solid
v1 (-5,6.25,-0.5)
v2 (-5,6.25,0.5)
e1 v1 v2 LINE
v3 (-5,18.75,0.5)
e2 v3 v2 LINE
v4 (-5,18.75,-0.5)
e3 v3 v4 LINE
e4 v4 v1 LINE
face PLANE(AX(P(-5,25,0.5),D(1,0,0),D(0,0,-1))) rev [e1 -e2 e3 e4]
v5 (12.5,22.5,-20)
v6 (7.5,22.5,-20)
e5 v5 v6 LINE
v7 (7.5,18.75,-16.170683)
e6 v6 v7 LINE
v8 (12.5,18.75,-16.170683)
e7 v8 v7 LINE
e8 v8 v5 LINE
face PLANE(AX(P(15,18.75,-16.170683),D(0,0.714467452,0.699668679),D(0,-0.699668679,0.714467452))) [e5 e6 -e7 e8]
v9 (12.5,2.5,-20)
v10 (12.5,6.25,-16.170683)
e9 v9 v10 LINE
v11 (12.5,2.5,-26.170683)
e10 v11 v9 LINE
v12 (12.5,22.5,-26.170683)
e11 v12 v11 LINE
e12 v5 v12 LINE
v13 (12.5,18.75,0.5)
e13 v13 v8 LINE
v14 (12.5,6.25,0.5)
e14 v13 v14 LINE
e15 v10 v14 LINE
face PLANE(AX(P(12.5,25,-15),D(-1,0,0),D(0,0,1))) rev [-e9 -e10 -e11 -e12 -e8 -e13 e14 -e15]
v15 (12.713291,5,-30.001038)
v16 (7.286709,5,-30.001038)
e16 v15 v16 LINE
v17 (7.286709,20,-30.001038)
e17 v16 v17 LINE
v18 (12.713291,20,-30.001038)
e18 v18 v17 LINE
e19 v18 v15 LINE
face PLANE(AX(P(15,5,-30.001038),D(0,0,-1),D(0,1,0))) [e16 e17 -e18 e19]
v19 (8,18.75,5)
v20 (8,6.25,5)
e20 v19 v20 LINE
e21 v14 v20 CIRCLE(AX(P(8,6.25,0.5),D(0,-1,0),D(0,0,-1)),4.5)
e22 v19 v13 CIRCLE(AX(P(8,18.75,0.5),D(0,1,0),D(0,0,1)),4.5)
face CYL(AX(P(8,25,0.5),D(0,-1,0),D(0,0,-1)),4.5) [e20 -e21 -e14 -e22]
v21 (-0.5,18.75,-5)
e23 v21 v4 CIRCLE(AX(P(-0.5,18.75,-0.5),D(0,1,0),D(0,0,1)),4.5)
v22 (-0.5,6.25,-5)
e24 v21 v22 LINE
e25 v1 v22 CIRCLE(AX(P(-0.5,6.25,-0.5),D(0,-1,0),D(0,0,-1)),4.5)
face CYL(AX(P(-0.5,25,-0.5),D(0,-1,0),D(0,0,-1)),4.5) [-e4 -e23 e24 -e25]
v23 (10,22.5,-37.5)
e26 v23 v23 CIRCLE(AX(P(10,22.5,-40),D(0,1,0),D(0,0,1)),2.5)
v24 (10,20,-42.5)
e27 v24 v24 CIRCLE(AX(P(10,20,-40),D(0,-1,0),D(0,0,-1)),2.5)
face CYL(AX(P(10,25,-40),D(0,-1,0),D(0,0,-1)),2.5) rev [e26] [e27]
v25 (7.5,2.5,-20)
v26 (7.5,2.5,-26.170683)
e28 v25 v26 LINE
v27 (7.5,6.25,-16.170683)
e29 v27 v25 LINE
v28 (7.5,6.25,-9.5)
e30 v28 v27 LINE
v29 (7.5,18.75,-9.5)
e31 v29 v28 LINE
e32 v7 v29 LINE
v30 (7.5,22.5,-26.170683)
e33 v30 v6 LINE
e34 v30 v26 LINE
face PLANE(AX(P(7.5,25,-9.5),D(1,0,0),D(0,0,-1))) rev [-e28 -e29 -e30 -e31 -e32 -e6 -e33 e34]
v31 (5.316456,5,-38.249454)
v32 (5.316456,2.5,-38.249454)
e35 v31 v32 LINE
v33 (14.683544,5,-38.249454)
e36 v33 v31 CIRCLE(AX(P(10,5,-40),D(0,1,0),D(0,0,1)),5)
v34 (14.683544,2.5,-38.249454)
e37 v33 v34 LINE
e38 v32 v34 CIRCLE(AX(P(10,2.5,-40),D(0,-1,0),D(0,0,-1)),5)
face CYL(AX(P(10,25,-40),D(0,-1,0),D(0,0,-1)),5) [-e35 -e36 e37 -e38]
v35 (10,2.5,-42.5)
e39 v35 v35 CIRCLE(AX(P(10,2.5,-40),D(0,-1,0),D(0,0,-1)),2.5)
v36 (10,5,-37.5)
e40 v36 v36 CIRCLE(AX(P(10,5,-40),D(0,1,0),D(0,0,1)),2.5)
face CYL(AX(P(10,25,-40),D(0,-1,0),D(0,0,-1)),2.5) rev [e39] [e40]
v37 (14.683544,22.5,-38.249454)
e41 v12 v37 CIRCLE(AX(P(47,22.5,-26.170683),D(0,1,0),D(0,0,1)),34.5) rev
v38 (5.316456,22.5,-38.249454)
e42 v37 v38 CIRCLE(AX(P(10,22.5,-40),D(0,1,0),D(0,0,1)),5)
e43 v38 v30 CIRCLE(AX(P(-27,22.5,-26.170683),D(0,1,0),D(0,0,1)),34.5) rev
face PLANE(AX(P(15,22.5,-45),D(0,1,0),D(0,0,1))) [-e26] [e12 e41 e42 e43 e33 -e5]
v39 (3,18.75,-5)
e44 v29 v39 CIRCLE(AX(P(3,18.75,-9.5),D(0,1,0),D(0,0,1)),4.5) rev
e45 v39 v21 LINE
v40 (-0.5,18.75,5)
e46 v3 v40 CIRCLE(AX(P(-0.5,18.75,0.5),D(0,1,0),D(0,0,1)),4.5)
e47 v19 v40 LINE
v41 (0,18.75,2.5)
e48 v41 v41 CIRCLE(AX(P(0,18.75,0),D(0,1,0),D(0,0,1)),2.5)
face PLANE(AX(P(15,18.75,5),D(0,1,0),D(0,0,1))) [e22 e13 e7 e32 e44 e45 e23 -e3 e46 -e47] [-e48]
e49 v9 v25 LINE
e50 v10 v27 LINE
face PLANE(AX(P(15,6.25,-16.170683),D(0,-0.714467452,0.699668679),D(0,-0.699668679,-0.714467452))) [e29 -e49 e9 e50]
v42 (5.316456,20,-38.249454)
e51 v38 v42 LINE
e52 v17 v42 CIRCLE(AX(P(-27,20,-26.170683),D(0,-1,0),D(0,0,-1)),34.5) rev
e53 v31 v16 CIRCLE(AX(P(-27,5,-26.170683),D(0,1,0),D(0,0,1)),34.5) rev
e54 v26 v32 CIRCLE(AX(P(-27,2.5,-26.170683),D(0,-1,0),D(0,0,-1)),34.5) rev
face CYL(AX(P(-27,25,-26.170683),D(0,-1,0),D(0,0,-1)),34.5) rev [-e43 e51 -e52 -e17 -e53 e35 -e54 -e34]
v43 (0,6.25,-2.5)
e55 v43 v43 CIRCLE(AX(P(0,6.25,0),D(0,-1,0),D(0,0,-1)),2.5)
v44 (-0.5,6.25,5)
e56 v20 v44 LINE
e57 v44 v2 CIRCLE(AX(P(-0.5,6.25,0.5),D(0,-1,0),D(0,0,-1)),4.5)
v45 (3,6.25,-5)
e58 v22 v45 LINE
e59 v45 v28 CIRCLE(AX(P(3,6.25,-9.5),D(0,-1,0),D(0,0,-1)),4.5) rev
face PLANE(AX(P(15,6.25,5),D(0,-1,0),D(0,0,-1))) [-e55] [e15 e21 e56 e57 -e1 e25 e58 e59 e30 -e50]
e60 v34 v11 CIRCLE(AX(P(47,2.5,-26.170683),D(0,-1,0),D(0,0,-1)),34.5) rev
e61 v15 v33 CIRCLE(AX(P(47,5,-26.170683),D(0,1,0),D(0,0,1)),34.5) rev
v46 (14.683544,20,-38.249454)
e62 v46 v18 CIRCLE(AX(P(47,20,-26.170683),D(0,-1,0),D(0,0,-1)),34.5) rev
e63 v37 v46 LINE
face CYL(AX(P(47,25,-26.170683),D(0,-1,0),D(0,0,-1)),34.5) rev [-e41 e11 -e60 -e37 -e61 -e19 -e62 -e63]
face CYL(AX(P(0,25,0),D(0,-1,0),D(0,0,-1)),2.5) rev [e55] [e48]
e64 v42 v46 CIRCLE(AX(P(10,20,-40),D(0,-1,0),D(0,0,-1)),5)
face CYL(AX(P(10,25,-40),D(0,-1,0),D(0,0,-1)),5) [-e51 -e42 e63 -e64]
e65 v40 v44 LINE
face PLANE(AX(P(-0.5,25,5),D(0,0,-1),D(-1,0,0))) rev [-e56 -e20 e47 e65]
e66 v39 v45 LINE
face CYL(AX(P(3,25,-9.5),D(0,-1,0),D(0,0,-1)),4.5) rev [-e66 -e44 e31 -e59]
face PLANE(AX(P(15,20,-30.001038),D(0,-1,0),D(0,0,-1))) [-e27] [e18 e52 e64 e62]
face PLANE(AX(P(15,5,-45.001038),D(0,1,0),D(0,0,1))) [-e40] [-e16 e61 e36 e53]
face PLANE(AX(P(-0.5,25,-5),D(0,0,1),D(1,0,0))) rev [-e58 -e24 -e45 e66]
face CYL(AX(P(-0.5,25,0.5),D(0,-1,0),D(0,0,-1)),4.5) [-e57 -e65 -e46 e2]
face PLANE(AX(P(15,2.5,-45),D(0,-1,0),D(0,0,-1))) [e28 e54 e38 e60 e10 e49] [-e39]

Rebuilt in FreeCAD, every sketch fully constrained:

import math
import FreeCAD as App
import Part
import Sketcher

V = App.Vector

doc = App.newDocument("Part")
body = doc.addObject("PartDesign::Body", "Body")

# Sketch on XZ plane
sketch1 = body.newObject("Sketcher::SketchObject", "Sketch")
sketch1.AttachmentSupport = (doc.getObject("XZ_Plane"), [""])
sketch1.MapMode = "FlatFace"
sketch1.addGeometry([
    Part.LineSegment(V(7.5, -26.2, 0), V(7.5, -9.5, 0)),  # 0
    Part.ArcOfCircle(Part.Circle(V(3, -9.5, 0), V(0, 0, 1), 4.5), math.radians(0), math.radians(90)),  # 1
    Part.LineSegment(V(3, -5, 0), V(-0.5, -5, 0)),  # 2
    Part.ArcOfCircle(Part.Circle(V(-0.5, -0.5, 0), V(0, 0, 1), 4.5), math.radians(-180), math.radians(-90)),  # 3
    Part.LineSegment(V(-5, -0.5, 0), V(-5, 0.5, 0)),  # 4
    Part.ArcOfCircle(Part.Circle(V(-0.5, 0.5, 0), V(0, 0, 1), 4.5), math.radians(90), math.radians(180)),  # 5
    Part.LineSegment(V(-0.5, 5, 0), V(8, 5, 0)),  # 6
    Part.ArcOfCircle(Part.Circle(V(8, 0.5, 0), V(0, 0, 1), 4.5), math.radians(0), math.radians(90)),  # 7
    Part.LineSegment(V(12.5, 0.5, 0), V(12.5, -26.2, 0)),  # 8
    Part.ArcOfCircle(Part.Circle(V(47, -26.2, 0), V(0, 0, 1), 34.5), math.radians(180), math.radians(200)),  # 9
    Part.ArcOfCircle(Part.Circle(V(10, -40, 0), V(0, 0, 1), 5), math.radians(160), math.radians(380)),  # 10
    Part.ArcOfCircle(Part.Circle(V(-27, -26.2, 0), V(0, 0, 1), 34.5), math.radians(-20), math.radians(0)),  # 11
    Part.Circle(V(0, 0, 0), V(0, 0, 1), 2.5),  # 12
    Part.Circle(V(10, -40, 0), V(0, 0, 1), 2.5),  # 13
], False)
sketch1.addConstraint([
    Sketcher.Constraint("Tangent", 0, 2, 1, 1),
    Sketcher.Constraint("Tangent", 1, 2, 2, 1),
    Sketcher.Constraint("Tangent", 2, 2, 3, 2),
    Sketcher.Constraint("Tangent", 3, 1, 4, 1),
    Sketcher.Constraint("Tangent", 4, 2, 5, 2),
    Sketcher.Constraint("Tangent", 5, 1, 6, 1),
    Sketcher.Constraint("Tangent", 6, 2, 7, 2),
    Sketcher.Constraint("Tangent", 7, 1, 8, 1),
    Sketcher.Constraint("Tangent", 8, 2, 9, 1),
    Sketcher.Constraint("Tangent", 9, 2, 10, 2),
    Sketcher.Constraint("Tangent", 10, 1, 11, 1),
    Sketcher.Constraint("Tangent", 11, 2, 0, 1),
    Sketcher.Constraint("Vertical", 0),
    Sketcher.Constraint("Horizontal", 2),
    Sketcher.Constraint("Vertical", 4),
    Sketcher.Constraint("Horizontal", 6),
    Sketcher.Constraint("Vertical", 8),
    Sketcher.Constraint("Coincident", 12, 3, -1, 1),
    Sketcher.Constraint("Coincident", 13, 3, 10, 3),
    Sketcher.Constraint("Equal", 1, 3),
    Sketcher.Constraint("Equal", 3, 5),
    Sketcher.Constraint("Equal", 5, 7),
    Sketcher.Constraint("Equal", 9, 11),
    Sketcher.Constraint("Equal", 12, 13),
    Sketcher.Constraint("Horizontal", 9, 3, 11, 3),
    Sketcher.Constraint("Diameter", 12, 5.0),
    Sketcher.Constraint("Radius", 10, 5.0),
    Sketcher.Constraint("Radius", 1, 4.5),
    Sketcher.Constraint("Radius", 9, 34.5),
    Sketcher.Constraint("DistanceY", 4, 1, 4, 2, 1.0),
    Sketcher.Constraint("DistanceX", 2, 2, 2, 1, 3.5),
    Sketcher.Constraint("DistanceX", 6, 1, 6, 2, 8.5),
    Sketcher.Constraint("DistanceX", -1, 1, 1, 3, 3.0),
    Sketcher.Constraint("DistanceY", 10, 3, -1, 1, 40.0),
    Sketcher.Constraint("DistanceY", 1, 2, -1, 1, 5.0),
])
pad1 = body.newObject("PartDesign::Pad", "Pad")
pad1.Profile = sketch1
pad1.Length = 25
pad1.Reversed = True

# Sketch on YZ plane
sketch2 = body.newObject("Sketcher::SketchObject", "Sketch001")
sketch2.AttachmentSupport = (doc.getObject("YZ_Plane"), [""])
sketch2.MapMode = "FlatFace"
sketch2.addGeometry([
    Part.LineSegment(V(20, -30, 0), V(5, -30, 0)),  # 0
    Part.LineSegment(V(5, -30, 0), V(5, -45, 0)),  # 1
    Part.LineSegment(V(5, -45, 0), V(20, -45, 0)),  # 2
    Part.LineSegment(V(20, -45, 0), V(20, -30, 0)),  # 3
    Part.LineSegment(V(22.5, -45, 0), V(25, -45, 0)),  # 4
    Part.LineSegment(V(25, -45, 0), V(25, 5, 0)),  # 5
    Part.LineSegment(V(25, 5, 0), V(18.8, 5, 0)),  # 6
    Part.LineSegment(V(18.8, 5, 0), V(18.8, -16.2, 0)),  # 7
    Part.LineSegment(V(18.8, -16.2, 0), V(22.5, -20, 0)),  # 8
    Part.LineSegment(V(22.5, -20, 0), V(22.5, -45, 0)),  # 9
    Part.LineSegment(V(0, 5, 0), V(0, -45, 0)),  # 10
    Part.LineSegment(V(0, -45, 0), V(2.5, -45, 0)),  # 11
    Part.LineSegment(V(2.5, -45, 0), V(2.5, -20, 0)),  # 12
    Part.LineSegment(V(2.5, -20, 0), V(6.2, -16.2, 0)),  # 13
    Part.LineSegment(V(6.2, -16.2, 0), V(6.2, 5, 0)),  # 14
    Part.LineSegment(V(6.2, 5, 0), V(0, 5, 0)),  # 15
], False)
sketch2.addConstraint([
    Sketcher.Constraint("Coincident", 0, 2, 1, 1),
    Sketcher.Constraint("Coincident", 1, 2, 2, 1),
    Sketcher.Constraint("Coincident", 2, 2, 3, 1),
    Sketcher.Constraint("Coincident", 3, 2, 0, 1),
    Sketcher.Constraint("Coincident", 4, 2, 5, 1),
    Sketcher.Constraint("Coincident", 5, 2, 6, 1),
    Sketcher.Constraint("Coincident", 6, 2, 7, 1),
    Sketcher.Constraint("Coincident", 7, 2, 8, 1),
    Sketcher.Constraint("Coincident", 8, 2, 9, 1),
    Sketcher.Constraint("Coincident", 9, 2, 4, 1),
    Sketcher.Constraint("Coincident", 10, 2, 11, 1),
    Sketcher.Constraint("Coincident", 11, 2, 12, 1),
    Sketcher.Constraint("Coincident", 12, 2, 13, 1),
    Sketcher.Constraint("Coincident", 13, 2, 14, 1),
    Sketcher.Constraint("Coincident", 14, 2, 15, 1),
    Sketcher.Constraint("Coincident", 15, 2, 10, 1),
    Sketcher.Constraint("Horizontal", 0),
    Sketcher.Constraint("Vertical", 1),
    Sketcher.Constraint("Horizontal", 2),
    Sketcher.Constraint("Vertical", 3),
    Sketcher.Constraint("Horizontal", 4),
    Sketcher.Constraint("Vertical", 5),
    Sketcher.Constraint("Horizontal", 6),
    Sketcher.Constraint("Vertical", 7),
    Sketcher.Constraint("Vertical", 9),
    Sketcher.Constraint("Vertical", 10),
    Sketcher.Constraint("Horizontal", 11),
    Sketcher.Constraint("Vertical", 12),
    Sketcher.Constraint("Vertical", 14),
    Sketcher.Constraint("Horizontal", 15),
    Sketcher.Constraint("PointOnObject", 10, 2, -2),
    Sketcher.Constraint("Horizontal", 9, 2, 10, 2),
    Sketcher.Constraint("Horizontal", 8, 2, 12, 2),
    Sketcher.Constraint("Horizontal", 7, 2, 13, 2),
    Sketcher.Constraint("Horizontal", 6, 2, 14, 2),
    Sketcher.Constraint("Equal", 4, 11),
    Sketcher.Constraint("Equal", 6, 15),
    Sketcher.Constraint("Equal", 2, 1),
    Sketcher.Constraint("DistanceX", 0, 2, 0, 1, 15.0),
    Sketcher.Constraint("DistanceY", 5, 1, 5, 2, 50.0),
    Sketcher.Constraint("DistanceY", 9, 2, 9, 1, 25.0),
    Sketcher.Constraint("DistanceX", 4, 1, 4, 2, 2.5),
    Sketcher.Constraint("DistanceX", -1, 1, 0, 2, 5.0),
    Sketcher.Constraint("DistanceX", -1, 1, 4, 2, 25.0),
    Sketcher.Constraint("DistanceY", 4, 2, -1, 1, 45.0),
    Sketcher.Constraint("DistanceX", 6, 2, 6, 1, 6.25),
    Sketcher.Constraint("Distance", 8, 5.35968),
    Sketcher.Constraint("DistanceY", 0, 2, -1, 1, 30.001038),
])
pocket1 = body.newObject("PartDesign::Pocket", "Pocket")
pocket1.Profile = sketch2
pocket1.Type = "ThroughAll"
pocket1.Midplane = True

doc.recompute()
